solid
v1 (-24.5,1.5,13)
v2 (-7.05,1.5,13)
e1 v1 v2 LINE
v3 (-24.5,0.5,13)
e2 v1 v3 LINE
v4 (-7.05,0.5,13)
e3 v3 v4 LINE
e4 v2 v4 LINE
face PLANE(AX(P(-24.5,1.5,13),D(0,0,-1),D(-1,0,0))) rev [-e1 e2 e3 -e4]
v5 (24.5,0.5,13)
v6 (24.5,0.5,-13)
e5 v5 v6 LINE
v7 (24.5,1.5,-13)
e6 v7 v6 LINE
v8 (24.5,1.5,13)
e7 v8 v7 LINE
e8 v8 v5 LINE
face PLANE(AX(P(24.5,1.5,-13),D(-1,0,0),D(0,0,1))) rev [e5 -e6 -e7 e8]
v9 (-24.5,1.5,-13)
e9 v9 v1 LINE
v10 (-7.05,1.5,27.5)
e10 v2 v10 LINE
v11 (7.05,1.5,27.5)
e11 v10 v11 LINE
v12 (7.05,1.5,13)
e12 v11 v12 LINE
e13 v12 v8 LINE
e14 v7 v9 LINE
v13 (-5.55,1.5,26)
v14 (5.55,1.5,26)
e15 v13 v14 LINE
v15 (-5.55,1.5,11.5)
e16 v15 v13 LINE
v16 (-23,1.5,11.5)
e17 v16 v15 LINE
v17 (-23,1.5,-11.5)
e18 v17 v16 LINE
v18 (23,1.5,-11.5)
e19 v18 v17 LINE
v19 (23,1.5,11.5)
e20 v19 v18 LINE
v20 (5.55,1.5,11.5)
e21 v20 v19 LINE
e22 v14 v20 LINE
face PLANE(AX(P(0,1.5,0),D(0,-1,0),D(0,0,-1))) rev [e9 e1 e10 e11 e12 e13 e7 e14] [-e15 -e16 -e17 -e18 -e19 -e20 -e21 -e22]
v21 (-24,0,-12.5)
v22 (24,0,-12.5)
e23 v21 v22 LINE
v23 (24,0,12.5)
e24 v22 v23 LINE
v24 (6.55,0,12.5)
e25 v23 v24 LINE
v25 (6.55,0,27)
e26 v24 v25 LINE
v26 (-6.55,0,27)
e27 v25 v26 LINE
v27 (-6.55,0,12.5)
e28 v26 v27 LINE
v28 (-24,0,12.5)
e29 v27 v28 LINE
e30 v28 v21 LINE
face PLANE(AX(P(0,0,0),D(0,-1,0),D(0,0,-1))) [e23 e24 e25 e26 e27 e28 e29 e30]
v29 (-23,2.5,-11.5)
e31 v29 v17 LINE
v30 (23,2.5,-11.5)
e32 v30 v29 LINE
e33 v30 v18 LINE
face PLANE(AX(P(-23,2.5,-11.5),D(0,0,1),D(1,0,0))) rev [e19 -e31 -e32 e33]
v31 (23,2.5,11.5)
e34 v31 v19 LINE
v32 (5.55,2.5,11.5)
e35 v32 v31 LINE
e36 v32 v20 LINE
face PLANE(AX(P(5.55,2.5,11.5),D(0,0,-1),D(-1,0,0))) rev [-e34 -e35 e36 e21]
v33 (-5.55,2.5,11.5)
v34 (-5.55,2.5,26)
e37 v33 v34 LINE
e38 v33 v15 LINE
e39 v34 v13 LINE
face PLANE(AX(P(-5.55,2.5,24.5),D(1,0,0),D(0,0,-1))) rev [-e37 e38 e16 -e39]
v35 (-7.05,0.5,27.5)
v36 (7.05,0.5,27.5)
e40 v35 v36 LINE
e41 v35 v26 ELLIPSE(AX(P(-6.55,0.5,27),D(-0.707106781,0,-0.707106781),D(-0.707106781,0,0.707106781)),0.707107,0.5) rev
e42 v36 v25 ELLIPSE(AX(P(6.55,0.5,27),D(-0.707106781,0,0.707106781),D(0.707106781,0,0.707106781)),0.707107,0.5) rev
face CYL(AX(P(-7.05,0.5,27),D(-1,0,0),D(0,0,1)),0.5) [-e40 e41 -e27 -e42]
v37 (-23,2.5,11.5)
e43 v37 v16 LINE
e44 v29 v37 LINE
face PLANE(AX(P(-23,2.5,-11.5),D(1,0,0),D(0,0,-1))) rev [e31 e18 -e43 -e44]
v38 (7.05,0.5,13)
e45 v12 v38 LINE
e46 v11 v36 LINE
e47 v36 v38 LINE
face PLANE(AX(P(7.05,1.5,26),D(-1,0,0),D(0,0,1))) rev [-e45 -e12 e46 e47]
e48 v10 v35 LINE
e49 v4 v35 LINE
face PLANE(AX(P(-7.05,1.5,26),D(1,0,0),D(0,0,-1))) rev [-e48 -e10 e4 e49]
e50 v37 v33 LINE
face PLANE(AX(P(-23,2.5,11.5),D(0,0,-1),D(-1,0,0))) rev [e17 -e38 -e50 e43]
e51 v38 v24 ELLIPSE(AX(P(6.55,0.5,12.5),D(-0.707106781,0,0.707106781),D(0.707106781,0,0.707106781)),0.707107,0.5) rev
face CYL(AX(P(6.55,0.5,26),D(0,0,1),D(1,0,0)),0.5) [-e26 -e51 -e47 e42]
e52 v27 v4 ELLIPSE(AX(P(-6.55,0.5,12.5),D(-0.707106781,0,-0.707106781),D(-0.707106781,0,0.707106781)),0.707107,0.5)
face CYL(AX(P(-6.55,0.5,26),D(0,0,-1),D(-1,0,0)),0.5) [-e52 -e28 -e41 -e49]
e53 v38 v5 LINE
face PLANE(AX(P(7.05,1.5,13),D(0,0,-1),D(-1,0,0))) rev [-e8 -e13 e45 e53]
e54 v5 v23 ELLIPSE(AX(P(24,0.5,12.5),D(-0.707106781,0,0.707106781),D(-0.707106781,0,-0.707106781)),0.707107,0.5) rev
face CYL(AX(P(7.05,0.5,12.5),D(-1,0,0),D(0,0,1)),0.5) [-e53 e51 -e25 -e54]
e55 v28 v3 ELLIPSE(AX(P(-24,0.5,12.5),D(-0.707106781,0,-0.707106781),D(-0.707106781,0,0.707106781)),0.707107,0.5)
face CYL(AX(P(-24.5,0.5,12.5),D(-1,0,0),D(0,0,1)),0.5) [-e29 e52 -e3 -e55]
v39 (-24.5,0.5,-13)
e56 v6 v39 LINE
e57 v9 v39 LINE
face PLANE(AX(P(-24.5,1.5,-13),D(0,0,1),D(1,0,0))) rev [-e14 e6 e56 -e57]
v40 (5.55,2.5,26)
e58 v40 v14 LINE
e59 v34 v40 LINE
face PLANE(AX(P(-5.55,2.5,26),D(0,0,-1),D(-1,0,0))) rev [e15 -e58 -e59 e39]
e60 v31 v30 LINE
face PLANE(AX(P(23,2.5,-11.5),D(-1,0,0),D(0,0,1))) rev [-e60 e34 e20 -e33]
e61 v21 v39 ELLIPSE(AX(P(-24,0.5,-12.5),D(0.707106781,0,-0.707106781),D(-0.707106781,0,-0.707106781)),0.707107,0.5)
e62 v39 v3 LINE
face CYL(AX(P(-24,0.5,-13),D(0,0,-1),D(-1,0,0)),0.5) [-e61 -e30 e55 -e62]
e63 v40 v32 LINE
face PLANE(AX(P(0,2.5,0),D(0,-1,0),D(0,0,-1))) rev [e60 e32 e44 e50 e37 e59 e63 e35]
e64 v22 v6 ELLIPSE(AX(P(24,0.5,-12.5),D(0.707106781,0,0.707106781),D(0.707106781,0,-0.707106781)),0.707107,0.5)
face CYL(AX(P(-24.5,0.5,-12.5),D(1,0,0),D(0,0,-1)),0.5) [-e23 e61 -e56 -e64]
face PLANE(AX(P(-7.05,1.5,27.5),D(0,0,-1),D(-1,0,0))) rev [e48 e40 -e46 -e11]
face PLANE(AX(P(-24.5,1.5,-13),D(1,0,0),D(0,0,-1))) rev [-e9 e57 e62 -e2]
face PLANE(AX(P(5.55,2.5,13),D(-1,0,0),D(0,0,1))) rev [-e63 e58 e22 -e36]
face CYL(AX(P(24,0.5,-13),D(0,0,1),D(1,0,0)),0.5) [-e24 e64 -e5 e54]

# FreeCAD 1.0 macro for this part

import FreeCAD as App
import Part
import Sketcher

V = App.Vector
Q = App.Units.Quantity


def edges_at(feature, points):
    """Names of the edges that pass closest to the given points."""
    edges = feature.Shape.Edges
    near = lambda p: min(range(len(edges)), key=lambda i: edges[i].distToShape(Part.Vertex(*p))[0])
    return sorted({f"Edge{near(p) + 1}" for p in points})


def add_polygon(sketch, points):
    """Adds a closed chain of lines whose ends are joined by coincident constraints."""
    first, n = sketch.GeometryCount, len(points)
    for a, b in zip(points, points[1:] + points[:1]):
        sketch.addGeometry(Part.LineSegment(App.Vector(*a, 0), App.Vector(*b, 0)), False)
    for i in range(n):
        sketch.addConstraint(Sketcher.Constraint("Coincident", first + i, 2, first + (i + 1) % n, 1))

doc = App.newDocument("Part")
body = doc.addObject("PartDesign::Body", "Body")

# Sketch on XZ plane
sketch1 = body.newObject("Sketcher::SketchObject", "Sketch")
sketch1.AttachmentSupport = (doc.getObject("XZ_Plane"), [""])
sketch1.MapMode = "FlatFace"
add_polygon(sketch1, [(24, -13), (-24, -13), (-24, 13), (-7, 13), (-7, 28), (7, 28), (7, 13), (24, 13)])  # lines 0-7
sketch1.addConstraint([
    Sketcher.Constraint("Horizontal", 0),
    Sketcher.Constraint("Vertical", 1),
    Sketcher.Constraint("Horizontal", 2),
    Sketcher.Constraint("Vertical", 3),
    Sketcher.Constraint("Horizontal", 4),
    Sketcher.Constraint("Vertical", 5),
    Sketcher.Constraint("Horizontal", 6),
    Sketcher.Constraint("Vertical", 7),
    Sketcher.Constraint("Symmetric", 0, 2, 6, 2, -1, 1),
    Sketcher.Constraint("Symmetric", 2, 2, 5, 2, -2),
    Sketcher.Constraint("DistanceX", 0, 2, 0, 1, Q("49 mm")),
    Sketcher.Constraint("DistanceY", 1, 1, 1, 2, Q("26 mm")),
    Sketcher.Constraint("DistanceX", 4, 1, 4, 2, Q("14.1 mm")),
    Sketcher.Constraint("DistanceY", 3, 1, 3, 2, Q("14.5 mm")),
])
pad1 = body.newObject("PartDesign::Pad", "Pad")
pad1.Profile = sketch1
pad1.Length = 1.5
pad1.Reversed = True

# Sketch on XZ plane
sketch2 = body.newObject("Sketcher::SketchObject", "Sketch001")
sketch2.AttachmentSupport = (doc.getObject("XZ_Plane"), [""])
sketch2.MapMode = "FlatFace"
sketch2.AttachmentOffset = App.Placement(V(0, 0, -1.5), App.Rotation())
add_polygon(sketch2, [(23, 12), (23, -12), (-23, -12), (-23, 12), (-6, 12), (-6, 26), (6, 26), (6, 12)])  # lines 0-7
sketch2.addConstraint([
    Sketcher.Constraint("Vertical", 0),
    Sketcher.Constraint("Horizontal", 1),
    Sketcher.Constraint("Vertical", 2),
    Sketcher.Constraint("Horizontal", 3),
    Sketcher.Constraint("Vertical", 4),
    Sketcher.Constraint("Horizontal", 5),
    Sketcher.Constraint("Vertical", 6),
    Sketcher.Constraint("Horizontal", 7),
    Sketcher.Constraint("Symmetric", 0, 2, 2, 2, -1, 1),
    Sketcher.Constraint("Symmetric", 3, 2, 6, 2, -2),
    Sketcher.Constraint("DistanceX", 1, 2, 1, 1, Q("46 mm")),
    Sketcher.Constraint("DistanceY", 0, 2, 0, 1, Q("23 mm")),
    Sketcher.Constraint("DistanceX", 5, 1, 5, 2, Q("11.1 mm")),
    Sketcher.Constraint("DistanceY", 4, 1, 4, 2, Q("14.5 mm")),
])
pad2 = body.newObject("PartDesign::Pad", "Pad001")
pad2.Profile = sketch2
pad2.Length = 1
pad2.Reversed = True
doc.recompute()

fillet = body.newObject("PartDesign::Fillet", "Fillet")
fillet.Base = (pad2, edges_at(pad2, [
    (7.05, 0, 20.25),
    (0, 0, 27.5),
    (-7.05, 0, 20.25),
    (-15.775, 0, 13),
    (-24.5, 0, 0),
    (0, 0, -13),
    (24.5, 0, 0),
    (15.775, 0, 13),
]))
fillet.Radius = 0.5

doc.recompute()
